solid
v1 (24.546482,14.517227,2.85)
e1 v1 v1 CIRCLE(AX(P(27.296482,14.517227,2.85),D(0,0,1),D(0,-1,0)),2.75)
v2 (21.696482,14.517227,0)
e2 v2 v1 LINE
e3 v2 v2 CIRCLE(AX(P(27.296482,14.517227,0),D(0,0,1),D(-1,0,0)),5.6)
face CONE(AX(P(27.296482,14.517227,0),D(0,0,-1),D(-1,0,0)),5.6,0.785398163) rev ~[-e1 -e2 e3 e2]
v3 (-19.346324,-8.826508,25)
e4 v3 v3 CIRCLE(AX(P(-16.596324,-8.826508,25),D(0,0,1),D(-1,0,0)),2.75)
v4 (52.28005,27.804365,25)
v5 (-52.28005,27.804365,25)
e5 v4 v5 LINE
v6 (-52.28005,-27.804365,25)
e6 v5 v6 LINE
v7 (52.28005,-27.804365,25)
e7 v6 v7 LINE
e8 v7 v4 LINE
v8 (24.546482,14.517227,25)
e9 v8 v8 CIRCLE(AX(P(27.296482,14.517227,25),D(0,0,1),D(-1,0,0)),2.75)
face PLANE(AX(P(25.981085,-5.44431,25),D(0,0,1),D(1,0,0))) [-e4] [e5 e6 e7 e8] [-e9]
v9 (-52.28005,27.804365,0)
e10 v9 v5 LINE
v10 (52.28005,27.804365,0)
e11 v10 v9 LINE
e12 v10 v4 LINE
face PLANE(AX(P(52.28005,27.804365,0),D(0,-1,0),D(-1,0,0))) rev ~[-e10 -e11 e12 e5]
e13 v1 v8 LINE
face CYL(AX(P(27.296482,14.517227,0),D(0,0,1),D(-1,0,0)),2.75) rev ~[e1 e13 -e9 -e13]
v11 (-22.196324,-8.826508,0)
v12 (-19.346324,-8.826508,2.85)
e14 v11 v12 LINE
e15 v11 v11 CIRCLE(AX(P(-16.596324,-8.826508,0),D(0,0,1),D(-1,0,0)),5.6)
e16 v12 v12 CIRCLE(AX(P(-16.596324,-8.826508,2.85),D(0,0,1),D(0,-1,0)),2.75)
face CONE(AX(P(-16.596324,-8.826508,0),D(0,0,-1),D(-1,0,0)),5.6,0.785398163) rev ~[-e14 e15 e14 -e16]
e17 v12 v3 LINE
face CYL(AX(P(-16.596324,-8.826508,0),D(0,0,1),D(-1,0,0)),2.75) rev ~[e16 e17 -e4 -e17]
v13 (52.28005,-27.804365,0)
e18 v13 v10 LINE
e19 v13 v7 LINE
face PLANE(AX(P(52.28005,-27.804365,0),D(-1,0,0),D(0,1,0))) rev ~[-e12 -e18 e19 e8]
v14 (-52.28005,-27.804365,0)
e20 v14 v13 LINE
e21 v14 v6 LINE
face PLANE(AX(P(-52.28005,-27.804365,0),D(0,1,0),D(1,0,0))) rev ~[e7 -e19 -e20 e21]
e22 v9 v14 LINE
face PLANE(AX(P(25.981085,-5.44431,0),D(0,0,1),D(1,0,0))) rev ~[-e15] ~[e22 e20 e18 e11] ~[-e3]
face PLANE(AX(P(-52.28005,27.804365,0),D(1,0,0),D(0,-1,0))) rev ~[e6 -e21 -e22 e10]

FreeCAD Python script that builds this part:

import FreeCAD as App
import Part
import Sketcher

V = App.Vector


def add_polygon(sketch, points):
    """Adds a closed chain of lines whose ends are joined by coincident constraints."""
    first, n = sketch.GeometryCount, len(points)
    for a, b in zip(points, points[1:] + points[:1]):
        sketch.addGeometry(Part.LineSegment(App.Vector(*a, 0), App.Vector(*b, 0)), False)
    for i in range(n):
        sketch.addConstraint(Sketcher.Constraint("Coincident", first + i, 2, first + (i + 1) % n, 1))

doc = App.newDocument("Part")
params = doc.addObject("Spreadsheet::Sheet", "Params")
for row, (alias, value) in enumerate([
    ("pad1_length", "25 mm"),
    ("sketch2_diameter", "5.5 mm"),
    ("hole_diameter", "5.5 mm"),
    ("hole_csink_diameter", "11.2 mm"),
], start=1):
    params.set(f"A{row}", alias)
    params.set(f"B{row}", "=" + value)
    params.setAlias(f"B{row}", alias)

body = doc.addObject("PartDesign::Body", "Body")

# Sketch on XY plane
sketch1 = body.newObject("Sketcher::SketchObject", "Sketch")
sketch1.AttachmentSupport = (doc.getObject("XY_Plane"), [""])
sketch1.MapMode = "FlatFace"
add_polygon(sketch1, [(52, -28), (52, 28), (-52, 28), (-52, -28)])  # lines 0-3
sketch1.addConstraint([
    Sketcher.Constraint("Vertical", 0),
    Sketcher.Constraint("Horizontal", 1),
    Sketcher.Constraint("Vertical", 2),
    Sketcher.Constraint("Horizontal", 3),
    Sketcher.Constraint("Symmetric", 0, 2, 2, 2, -1, 1),
    Sketcher.Constraint("DistanceX", 1, 2, 1, 1, 104.5601),
    Sketcher.Constraint("DistanceY", 0, 1, 0, 2, 55.608731),
])
pad1 = body.newObject("PartDesign::Pad", "Pad")
pad1.Profile = sketch1
pad1.setExpression("Length", "Params.pad1_length")

# Sketch on XY plane
sketch2 = body.newObject("Sketcher::SketchObject", "Sketch001")
sketch2.AttachmentSupport = (doc.getObject("XY_Plane"), [""])
sketch2.MapMode = "FlatFace"
sketch2.addGeometry([
    Part.Circle(V(27.3, 14.5, 0), V(0, 0, 1), 2.8),
    Part.Circle(V(-16.6, -8.8, 0), V(0, 0, 1), 2.8),
], False)
sketch2.addConstraint([
    Sketcher.Constraint("Equal", 0, 1),
    Sketcher.Constraint("Diameter", 0, 5.5),
    Sketcher.Constraint("DistanceX", -1, 1, 0, 3, 27.296482),
    Sketcher.Constraint("DistanceY", -1, 1, 0, 3, 14.517227),
    Sketcher.Constraint("DistanceX", 1, 3, -1, 1, 16.596324),
    Sketcher.Constraint("DistanceY", 1, 3, -1, 1, 8.826508),
])
sketch2.setExpression("Constraints[1]", "Params.sketch2_diameter")
doc.recompute()
hole = body.newObject("PartDesign::Hole", "Hole")
hole.Profile = sketch2
hole.ThreadType = "None"
hole.setExpression("Diameter", "Params.hole_diameter")
hole.DepthType = "ThroughAll"
hole.HoleCutType = "Countersink"
hole.setExpression("HoleCutDiameter", "Params.hole_csink_diameter")
hole.HoleCutCountersinkAngle = 90
hole.Reversed = True

doc.recompute()
